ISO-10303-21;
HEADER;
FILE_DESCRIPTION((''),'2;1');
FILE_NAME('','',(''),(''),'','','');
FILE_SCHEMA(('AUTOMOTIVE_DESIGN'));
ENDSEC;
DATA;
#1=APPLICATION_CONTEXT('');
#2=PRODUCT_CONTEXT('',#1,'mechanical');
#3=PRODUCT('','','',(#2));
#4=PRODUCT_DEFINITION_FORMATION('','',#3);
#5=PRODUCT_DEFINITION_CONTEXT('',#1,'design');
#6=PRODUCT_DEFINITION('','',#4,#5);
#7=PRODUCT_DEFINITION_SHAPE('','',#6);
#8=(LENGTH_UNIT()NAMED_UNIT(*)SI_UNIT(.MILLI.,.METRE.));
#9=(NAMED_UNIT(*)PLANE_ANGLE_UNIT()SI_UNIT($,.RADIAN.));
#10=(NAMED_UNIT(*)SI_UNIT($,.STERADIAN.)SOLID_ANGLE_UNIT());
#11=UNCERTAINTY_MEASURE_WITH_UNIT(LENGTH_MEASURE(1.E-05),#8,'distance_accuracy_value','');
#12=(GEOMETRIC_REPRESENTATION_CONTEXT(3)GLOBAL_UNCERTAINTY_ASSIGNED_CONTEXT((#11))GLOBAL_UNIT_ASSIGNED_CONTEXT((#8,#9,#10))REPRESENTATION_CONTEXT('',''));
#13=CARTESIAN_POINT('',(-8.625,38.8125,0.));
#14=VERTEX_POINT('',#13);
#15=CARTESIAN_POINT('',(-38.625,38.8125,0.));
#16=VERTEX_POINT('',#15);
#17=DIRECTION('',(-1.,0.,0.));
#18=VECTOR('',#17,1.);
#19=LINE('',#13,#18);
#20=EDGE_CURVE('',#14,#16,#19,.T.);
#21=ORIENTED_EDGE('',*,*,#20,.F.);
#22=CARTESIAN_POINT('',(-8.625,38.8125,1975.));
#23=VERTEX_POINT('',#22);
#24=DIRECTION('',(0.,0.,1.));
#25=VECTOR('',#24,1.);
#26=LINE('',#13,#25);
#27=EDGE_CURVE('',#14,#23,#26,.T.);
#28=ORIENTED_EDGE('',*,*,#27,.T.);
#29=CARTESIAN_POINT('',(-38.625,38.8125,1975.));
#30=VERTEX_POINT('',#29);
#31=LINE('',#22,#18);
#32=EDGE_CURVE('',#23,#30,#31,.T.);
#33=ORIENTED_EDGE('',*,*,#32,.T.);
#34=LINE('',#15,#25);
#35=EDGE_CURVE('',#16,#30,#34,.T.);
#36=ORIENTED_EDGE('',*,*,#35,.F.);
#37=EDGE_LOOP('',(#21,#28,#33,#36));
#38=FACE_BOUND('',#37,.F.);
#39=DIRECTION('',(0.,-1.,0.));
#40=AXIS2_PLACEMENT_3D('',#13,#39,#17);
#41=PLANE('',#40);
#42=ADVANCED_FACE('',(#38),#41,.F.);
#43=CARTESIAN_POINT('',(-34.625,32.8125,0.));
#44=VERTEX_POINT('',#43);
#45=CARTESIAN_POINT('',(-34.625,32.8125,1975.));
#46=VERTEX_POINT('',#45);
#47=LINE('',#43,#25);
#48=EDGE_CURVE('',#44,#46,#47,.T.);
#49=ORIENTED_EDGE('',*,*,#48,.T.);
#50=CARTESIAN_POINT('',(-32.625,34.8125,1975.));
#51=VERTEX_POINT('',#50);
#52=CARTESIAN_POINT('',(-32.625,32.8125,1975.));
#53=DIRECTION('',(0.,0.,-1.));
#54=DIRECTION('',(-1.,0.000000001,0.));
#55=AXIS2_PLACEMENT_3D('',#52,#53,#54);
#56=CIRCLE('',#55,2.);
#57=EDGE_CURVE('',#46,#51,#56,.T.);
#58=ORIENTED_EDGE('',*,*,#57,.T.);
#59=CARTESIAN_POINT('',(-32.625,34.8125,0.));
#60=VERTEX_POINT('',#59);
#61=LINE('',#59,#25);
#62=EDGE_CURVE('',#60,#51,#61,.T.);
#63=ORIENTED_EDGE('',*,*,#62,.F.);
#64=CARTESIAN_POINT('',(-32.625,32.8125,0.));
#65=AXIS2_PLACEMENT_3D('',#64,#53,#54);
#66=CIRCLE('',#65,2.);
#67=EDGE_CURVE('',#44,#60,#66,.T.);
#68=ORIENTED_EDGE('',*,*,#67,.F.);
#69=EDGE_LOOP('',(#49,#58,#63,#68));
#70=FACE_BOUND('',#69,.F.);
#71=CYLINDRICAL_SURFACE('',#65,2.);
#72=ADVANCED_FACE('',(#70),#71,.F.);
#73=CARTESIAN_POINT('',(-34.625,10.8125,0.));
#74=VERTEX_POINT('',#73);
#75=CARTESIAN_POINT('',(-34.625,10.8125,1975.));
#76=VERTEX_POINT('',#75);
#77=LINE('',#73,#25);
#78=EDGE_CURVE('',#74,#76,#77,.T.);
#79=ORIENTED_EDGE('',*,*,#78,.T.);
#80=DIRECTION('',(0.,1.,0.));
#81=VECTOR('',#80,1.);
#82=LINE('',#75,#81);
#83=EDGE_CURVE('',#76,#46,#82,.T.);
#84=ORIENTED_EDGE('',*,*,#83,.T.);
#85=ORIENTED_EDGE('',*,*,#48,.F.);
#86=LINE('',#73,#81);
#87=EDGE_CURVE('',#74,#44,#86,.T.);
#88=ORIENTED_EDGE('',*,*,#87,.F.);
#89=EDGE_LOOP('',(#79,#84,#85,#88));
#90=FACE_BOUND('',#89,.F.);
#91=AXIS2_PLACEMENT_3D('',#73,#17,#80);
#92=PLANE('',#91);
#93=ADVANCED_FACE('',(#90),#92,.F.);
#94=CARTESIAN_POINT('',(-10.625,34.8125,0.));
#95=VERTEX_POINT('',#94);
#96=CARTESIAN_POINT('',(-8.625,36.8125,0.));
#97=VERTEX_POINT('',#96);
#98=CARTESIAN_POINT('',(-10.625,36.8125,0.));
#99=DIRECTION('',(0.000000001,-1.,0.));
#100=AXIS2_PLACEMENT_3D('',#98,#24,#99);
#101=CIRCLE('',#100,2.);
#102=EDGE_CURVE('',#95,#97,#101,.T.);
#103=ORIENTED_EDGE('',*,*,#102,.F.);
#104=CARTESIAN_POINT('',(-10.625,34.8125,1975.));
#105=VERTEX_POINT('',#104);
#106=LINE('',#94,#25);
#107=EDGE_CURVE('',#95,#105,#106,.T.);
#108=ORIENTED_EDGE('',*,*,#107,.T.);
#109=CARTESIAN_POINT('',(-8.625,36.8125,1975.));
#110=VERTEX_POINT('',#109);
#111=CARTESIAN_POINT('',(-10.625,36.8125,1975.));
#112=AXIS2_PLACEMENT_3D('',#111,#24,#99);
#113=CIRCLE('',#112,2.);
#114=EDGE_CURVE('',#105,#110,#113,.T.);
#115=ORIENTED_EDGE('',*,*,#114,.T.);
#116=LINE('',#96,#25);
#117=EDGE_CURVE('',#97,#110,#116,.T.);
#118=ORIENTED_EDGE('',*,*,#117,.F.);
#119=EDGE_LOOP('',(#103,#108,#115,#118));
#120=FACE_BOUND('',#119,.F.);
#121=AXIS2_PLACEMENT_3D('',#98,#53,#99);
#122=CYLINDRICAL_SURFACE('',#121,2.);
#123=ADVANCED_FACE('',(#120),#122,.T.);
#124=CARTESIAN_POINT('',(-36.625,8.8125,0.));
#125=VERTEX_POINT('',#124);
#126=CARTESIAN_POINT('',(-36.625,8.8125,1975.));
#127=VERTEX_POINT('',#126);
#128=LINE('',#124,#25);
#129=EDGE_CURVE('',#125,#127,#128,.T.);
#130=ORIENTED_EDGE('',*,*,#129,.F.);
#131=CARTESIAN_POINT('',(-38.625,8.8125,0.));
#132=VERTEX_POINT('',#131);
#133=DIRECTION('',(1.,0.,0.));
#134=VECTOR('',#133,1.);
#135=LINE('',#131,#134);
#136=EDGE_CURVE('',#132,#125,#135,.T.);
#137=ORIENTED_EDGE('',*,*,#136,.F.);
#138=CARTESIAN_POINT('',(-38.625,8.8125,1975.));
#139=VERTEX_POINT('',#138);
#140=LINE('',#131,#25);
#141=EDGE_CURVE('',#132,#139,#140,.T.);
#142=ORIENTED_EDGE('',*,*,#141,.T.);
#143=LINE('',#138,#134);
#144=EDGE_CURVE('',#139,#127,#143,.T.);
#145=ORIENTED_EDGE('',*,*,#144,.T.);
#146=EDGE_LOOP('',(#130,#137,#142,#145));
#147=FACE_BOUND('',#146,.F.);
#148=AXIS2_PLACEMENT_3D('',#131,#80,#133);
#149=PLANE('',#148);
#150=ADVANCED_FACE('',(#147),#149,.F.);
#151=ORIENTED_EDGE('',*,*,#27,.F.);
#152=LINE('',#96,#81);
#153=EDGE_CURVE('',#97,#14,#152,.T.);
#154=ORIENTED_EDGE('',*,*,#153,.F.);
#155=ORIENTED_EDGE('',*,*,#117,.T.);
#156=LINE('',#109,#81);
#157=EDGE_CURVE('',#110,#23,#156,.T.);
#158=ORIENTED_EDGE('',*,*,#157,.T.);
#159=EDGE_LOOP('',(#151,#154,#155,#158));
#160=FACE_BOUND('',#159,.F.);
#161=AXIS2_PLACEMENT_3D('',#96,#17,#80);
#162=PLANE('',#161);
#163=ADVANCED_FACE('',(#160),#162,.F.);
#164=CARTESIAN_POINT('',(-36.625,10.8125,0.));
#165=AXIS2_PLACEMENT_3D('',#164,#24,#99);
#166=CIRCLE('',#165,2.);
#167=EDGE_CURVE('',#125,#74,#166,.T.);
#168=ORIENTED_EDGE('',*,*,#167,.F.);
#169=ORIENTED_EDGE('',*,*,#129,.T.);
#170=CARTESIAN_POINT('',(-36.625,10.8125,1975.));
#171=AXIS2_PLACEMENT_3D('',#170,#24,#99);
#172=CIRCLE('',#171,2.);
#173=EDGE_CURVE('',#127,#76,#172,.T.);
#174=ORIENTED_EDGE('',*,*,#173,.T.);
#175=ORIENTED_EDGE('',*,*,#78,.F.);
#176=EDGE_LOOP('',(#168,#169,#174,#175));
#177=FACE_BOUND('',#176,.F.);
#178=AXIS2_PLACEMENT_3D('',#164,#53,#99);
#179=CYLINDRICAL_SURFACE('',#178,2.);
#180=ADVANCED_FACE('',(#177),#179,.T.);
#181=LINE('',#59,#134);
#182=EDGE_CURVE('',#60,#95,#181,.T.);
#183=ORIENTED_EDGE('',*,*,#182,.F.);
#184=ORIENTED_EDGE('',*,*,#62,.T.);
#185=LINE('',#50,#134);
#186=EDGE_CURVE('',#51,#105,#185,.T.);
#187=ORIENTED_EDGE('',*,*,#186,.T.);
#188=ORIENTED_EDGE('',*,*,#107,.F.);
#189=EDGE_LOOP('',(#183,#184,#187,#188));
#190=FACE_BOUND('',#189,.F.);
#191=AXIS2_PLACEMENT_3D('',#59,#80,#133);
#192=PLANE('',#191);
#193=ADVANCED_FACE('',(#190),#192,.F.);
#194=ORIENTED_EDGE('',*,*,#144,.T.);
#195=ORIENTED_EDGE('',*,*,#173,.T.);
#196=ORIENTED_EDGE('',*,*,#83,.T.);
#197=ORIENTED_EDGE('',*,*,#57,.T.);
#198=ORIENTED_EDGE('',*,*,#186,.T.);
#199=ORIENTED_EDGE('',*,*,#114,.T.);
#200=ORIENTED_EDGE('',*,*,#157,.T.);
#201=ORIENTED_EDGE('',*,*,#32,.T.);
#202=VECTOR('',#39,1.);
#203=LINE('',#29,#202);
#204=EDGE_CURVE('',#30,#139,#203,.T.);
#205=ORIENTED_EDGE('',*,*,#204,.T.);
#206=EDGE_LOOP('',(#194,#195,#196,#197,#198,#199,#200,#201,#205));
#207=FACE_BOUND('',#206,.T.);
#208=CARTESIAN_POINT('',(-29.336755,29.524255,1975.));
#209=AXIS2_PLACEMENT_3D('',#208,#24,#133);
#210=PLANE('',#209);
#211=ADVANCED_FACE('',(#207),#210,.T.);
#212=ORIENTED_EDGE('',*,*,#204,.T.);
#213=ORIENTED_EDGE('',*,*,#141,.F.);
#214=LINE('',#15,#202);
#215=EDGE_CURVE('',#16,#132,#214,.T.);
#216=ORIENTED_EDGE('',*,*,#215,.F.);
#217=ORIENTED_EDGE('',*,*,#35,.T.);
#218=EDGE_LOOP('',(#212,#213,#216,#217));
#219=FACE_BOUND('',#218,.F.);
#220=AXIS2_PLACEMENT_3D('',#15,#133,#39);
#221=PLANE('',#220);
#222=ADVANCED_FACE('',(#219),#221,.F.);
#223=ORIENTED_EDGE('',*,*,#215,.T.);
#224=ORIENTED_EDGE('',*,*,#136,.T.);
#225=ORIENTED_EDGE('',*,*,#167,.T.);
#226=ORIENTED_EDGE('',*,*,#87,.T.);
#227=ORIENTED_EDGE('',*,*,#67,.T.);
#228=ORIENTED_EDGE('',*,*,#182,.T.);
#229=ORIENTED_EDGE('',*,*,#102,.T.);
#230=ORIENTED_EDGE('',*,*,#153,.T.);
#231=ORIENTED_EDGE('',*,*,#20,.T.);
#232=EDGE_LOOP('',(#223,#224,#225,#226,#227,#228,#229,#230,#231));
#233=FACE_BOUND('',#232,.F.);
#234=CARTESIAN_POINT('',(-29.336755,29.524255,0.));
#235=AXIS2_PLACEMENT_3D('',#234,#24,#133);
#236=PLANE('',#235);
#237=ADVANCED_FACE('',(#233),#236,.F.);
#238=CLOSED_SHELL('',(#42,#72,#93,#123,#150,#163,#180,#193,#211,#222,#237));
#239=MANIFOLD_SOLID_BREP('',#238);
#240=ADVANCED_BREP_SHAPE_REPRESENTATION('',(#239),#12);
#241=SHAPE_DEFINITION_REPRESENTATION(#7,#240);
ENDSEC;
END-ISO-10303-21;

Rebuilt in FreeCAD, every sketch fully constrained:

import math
import FreeCAD as App
import Part
import Sketcher

doc = App.newDocument("Part")
params = doc.addObject("Spreadsheet::Sheet", "Params")
for row, (alias, value) in enumerate([
    ("sketch1_radius", "2 mm"),
    ("sketch1_width", "30 mm"),
    ("sketch1_width2", "2 mm"),
    ("pad1_length", "1975 mm"),
], start=1):
    params.set(f"A{row}", alias)
    params.set(f"B{row}", "=" + value)
    params.setAlias(f"B{row}", alias)

body = doc.addObject("PartDesign::Body", "Body")

# Sketch on XY plane
sketch1 = body.newObject("Sketcher::SketchObject", "Sketch")
sketch1.AttachmentSupport = (doc.getObject("XY_Plane"), [""])
sketch1.MapMode = "FlatFace"
sketch1.addGeometry(Part.LineSegment(App.Vector(-8.6, 38.8, 0), App.Vector(-38.6, 38.8, 0)), False)
sketch1.addGeometry(Part.LineSegment(App.Vector(-38.6, 38.8, 0), App.Vector(-38.6, 8.8, 0)), False)
sketch1.addGeometry(Part.LineSegment(App.Vector(-38.6, 8.8, 0), App.Vector(-36.6, 8.8, 0)), False)
sketch1.addGeometry(Part.ArcOfCircle(Part.Circle(App.Vector(-36.6, 10.8, 0), App.Vector(0, 0, 1), 2), math.radians(-90), math.radians(0)), False)
sketch1.addGeometry(Part.LineSegment(App.Vector(-34.6, 10.8, 0), App.Vector(-34.6, 32.8, 0)), False)
sketch1.addGeometry(Part.ArcOfCircle(Part.Circle(App.Vector(-32.6, 32.8, 0), App.Vector(0, 0, 1), 2), math.radians(90), math.radians(180)), False)
sketch1.addGeometry(Part.LineSegment(App.Vector(-32.6, 34.8, 0), App.Vector(-10.6, 34.8, 0)), False)
sketch1.addGeometry(Part.ArcOfCircle(Part.Circle(App.Vector(-10.6, 36.8, 0), App.Vector(0, 0, 1), 2), math.radians(-90), math.radians(0)), False)
sketch1.addGeometry(Part.LineSegment(App.Vector(-8.6, 36.8, 0), App.Vector(-8.6, 38.8, 0)), False)
sketch1.addConstraint(Sketcher.Constraint("Coincident", 0, 2, 1, 1))
sketch1.addConstraint(Sketcher.Constraint("Coincident", 1, 2, 2, 1))
sketch1.addConstraint(Sketcher.Constraint("Tangent", 2, 2, 3, 1))
sketch1.addConstraint(Sketcher.Constraint("Tangent", 3, 2, 4, 1))
sketch1.addConstraint(Sketcher.Constraint("Tangent", 4, 2, 5, 2))
sketch1.addConstraint(Sketcher.Constraint("Tangent", 5, 1, 6, 1))
sketch1.addConstraint(Sketcher.Constraint("Tangent", 6, 2, 7, 1))
sketch1.addConstraint(Sketcher.Constraint("Tangent", 7, 2, 8, 1))
sketch1.addConstraint(Sketcher.Constraint("Coincident", 8, 2, 0, 1))
sketch1.addConstraint(Sketcher.Constraint("Horizontal", 0))
sketch1.addConstraint(Sketcher.Constraint("Vertical", 1))
sketch1.addConstraint(Sketcher.Constraint("Horizontal", 2))
sketch1.addConstraint(Sketcher.Constraint("Vertical", 4))
sketch1.addConstraint(Sketcher.Constraint("Horizontal", 6))
sketch1.addConstraint(Sketcher.Constraint("Vertical", 8))
sketch1.addConstraint(Sketcher.Constraint("Equal", 3, 5))
sketch1.addConstraint(Sketcher.Constraint("Equal", 5, 7))
sketch1.addConstraint(Sketcher.Constraint("Equal", 0, 1))
sketch1.addConstraint(Sketcher.Constraint("Equal", 6, 4))
sketch1.addConstraint(Sketcher.Constraint("Radius", 3, 2.0))
sketch1.addConstraint(Sketcher.Constraint("DistanceX", 0, 2, 0, 1, 30.0))
sketch1.addConstraint(Sketcher.Constraint("DistanceX", 2, 1, 2, 2, 2.0))
sketch1.addConstraint(Sketcher.Constraint("DistanceX", 3, 3, -1, 1, 36.625))
sketch1.addConstraint(Sketcher.Constraint("DistanceY", -1, 1, 3, 3, 10.8125))
sketch1.setExpression("Constraints[19]", "Params.sketch1_radius")
sketch1.setExpression("Constraints[20]", "Params.sketch1_width")
sketch1.setExpression("Constraints[21]", "Params.sketch1_width2")
pad1 = body.newObject("PartDesign::Pad", "Pad")
pad1.Profile = sketch1
pad1.setExpression("Length", "Params.pad1_length")

doc.recompute()
